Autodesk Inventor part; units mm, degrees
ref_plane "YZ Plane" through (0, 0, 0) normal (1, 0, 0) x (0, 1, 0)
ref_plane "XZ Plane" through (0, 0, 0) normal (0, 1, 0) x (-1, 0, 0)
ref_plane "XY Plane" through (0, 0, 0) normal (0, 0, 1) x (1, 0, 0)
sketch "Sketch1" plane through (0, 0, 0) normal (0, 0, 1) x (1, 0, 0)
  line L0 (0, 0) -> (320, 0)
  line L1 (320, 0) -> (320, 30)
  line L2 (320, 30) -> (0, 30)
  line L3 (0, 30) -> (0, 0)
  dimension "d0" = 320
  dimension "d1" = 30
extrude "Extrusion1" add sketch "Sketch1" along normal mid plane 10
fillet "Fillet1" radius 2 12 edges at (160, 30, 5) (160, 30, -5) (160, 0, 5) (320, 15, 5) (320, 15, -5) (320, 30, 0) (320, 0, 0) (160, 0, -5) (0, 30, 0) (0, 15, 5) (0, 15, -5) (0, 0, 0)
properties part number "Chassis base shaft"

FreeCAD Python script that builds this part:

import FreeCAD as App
import Part
import Sketcher
Q = App.Units.Quantity


def add_polygon(sketch, points):
    """Adds a closed chain of lines whose ends are joined by coincident constraints."""
    first, n = sketch.GeometryCount, len(points)
    for a, b in zip(points, points[1:] + points[:1]):
        sketch.addGeometry(Part.LineSegment(App.Vector(*a, 0), App.Vector(*b, 0)), False)
    for i in range(n):
        sketch.addConstraint(Sketcher.Constraint("Coincident", first + i, 2, first + (i + 1) % n, 1))

doc = App.newDocument("Part")
body = doc.addObject("PartDesign::Body", "Body")

# Sketch on XY plane
sketch1 = body.newObject("Sketcher::SketchObject", "Sketch")
sketch1.AttachmentSupport = (doc.getObject("XY_Plane"), [""])
sketch1.MapMode = "FlatFace"
add_polygon(sketch1, [(0, 30), (0, 0), (320, 0), (320, 30)])  # lines 0-3
sketch1.addConstraint([
    Sketcher.Constraint("Vertical", 0),
    Sketcher.Constraint("Horizontal", 1),
    Sketcher.Constraint("Vertical", 2),
    Sketcher.Constraint("Horizontal", 3),
    Sketcher.Constraint("Coincident", 0, 2, -1, 1),
    Sketcher.Constraint("DistanceX", 1, 1, 1, 2, Q("320 mm")),
    Sketcher.Constraint("DistanceY", 0, 2, 0, 1, Q("30 mm")),
])
pad1 = body.newObject("PartDesign::Pad", "Pad")
pad1.Profile = sketch1
pad1.Length = 10
pad1.Midplane = True
doc.recompute()

fillet = body.newObject("PartDesign::Fillet", "Fillet")
fillet.Base = (pad1, ["Edge1"])
fillet.UseAllEdges = True
fillet.Radius = 2

doc.recompute()
